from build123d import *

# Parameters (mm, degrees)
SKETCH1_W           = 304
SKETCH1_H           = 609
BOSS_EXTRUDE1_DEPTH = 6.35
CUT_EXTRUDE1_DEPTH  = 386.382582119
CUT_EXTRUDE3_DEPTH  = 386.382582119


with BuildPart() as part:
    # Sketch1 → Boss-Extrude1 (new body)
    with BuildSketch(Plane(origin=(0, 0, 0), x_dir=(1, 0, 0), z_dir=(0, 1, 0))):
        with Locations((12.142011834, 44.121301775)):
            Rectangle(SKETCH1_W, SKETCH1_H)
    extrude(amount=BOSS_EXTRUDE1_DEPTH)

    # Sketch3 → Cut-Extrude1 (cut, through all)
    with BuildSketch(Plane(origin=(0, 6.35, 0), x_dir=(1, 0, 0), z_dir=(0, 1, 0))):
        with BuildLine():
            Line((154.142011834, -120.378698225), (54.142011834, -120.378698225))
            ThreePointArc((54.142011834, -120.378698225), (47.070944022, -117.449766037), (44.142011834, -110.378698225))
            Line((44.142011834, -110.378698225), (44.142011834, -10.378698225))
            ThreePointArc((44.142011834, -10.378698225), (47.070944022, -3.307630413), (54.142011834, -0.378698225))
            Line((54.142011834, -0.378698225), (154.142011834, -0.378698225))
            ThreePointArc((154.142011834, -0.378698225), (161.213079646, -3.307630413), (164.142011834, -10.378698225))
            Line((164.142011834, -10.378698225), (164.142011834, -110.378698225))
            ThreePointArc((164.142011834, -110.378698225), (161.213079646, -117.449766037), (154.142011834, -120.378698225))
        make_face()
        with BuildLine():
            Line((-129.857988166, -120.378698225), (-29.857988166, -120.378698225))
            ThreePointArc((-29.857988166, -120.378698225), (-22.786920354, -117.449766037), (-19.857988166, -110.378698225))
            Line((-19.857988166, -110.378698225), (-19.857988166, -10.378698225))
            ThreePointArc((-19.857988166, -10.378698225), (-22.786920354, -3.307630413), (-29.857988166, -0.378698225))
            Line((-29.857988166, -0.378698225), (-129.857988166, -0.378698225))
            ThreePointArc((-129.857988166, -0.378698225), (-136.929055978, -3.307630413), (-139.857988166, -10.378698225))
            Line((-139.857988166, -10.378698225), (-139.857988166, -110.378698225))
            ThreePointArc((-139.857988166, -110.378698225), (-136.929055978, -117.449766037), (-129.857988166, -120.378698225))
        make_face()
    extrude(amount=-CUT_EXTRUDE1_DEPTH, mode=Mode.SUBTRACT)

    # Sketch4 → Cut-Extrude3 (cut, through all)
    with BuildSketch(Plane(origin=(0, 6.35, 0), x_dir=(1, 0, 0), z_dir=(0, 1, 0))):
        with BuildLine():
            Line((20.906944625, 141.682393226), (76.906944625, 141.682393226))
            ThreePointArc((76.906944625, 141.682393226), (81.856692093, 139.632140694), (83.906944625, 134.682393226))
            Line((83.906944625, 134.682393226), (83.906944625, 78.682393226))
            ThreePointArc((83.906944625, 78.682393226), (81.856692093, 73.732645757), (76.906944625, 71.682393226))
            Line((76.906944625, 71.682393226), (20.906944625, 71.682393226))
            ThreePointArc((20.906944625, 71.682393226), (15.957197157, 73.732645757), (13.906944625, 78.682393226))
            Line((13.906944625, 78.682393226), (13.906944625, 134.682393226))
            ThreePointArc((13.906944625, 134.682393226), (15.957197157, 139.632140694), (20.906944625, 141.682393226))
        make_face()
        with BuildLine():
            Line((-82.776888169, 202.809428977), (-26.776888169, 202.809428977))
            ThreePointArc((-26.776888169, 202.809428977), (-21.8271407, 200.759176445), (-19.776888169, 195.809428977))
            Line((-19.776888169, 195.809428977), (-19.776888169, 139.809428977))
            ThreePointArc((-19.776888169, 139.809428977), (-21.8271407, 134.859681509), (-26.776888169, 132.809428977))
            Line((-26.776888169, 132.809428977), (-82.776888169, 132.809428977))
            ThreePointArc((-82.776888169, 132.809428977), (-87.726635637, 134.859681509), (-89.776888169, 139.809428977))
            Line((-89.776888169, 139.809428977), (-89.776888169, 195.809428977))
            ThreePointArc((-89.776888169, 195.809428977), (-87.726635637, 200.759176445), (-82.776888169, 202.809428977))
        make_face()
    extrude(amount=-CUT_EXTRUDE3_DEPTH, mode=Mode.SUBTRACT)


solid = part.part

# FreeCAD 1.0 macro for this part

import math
import FreeCAD as App
import Part
import Sketcher
Q = App.Units.Quantity

doc = App.newDocument("Part")
body = doc.addObject("PartDesign::Body", "Body")

# Sketch on XZ plane
sketch1 = body.newObject("Sketcher::SketchObject", "Sketch")
sketch1.AttachmentSupport = (doc.getObject("XZ_Plane"), [""])
sketch1.MapMode = "FlatFace"
sketch1.addGeometry(Part.LineSegment(App.Vector(-140, -349, 0), App.Vector(-140, 260, 0)), False)
sketch1.addGeometry(Part.LineSegment(App.Vector(-140, 260, 0), App.Vector(164, 260, 0)), False)
sketch1.addGeometry(Part.LineSegment(App.Vector(164, 260, 0), App.Vector(164, -349, 0)), False)
sketch1.addGeometry(Part.LineSegment(App.Vector(164, -349, 0), App.Vector(-140, -349, 0)), False)
sketch1.addConstraint(Sketcher.Constraint("Coincident", 0, 2, 1, 1))
sketch1.addConstraint(Sketcher.Constraint("Coincident", 1, 2, 2, 1))
sketch1.addConstraint(Sketcher.Constraint("Coincident", 2, 2, 3, 1))
sketch1.addConstraint(Sketcher.Constraint("Coincident", 3, 2, 0, 1))
sketch1.addConstraint(Sketcher.Constraint("Vertical", 0))
sketch1.addConstraint(Sketcher.Constraint("Horizontal", 1))
sketch1.addConstraint(Sketcher.Constraint("Vertical", 2))
sketch1.addConstraint(Sketcher.Constraint("Horizontal", 3))
sketch1.addConstraint(Sketcher.Constraint("DistanceX", 1, 1, 1, 2, Q("304 mm")))
sketch1.addConstraint(Sketcher.Constraint("DistanceY", 0, 1, 0, 2, Q("609 mm")))
sketch1.addConstraint(Sketcher.Constraint("DistanceY", -1, 1, 0, 2, Q("260.378698 mm")))
sketch1.addConstraint(Sketcher.Constraint("DistanceX", 0, 2, -1, 1, Q("139.857988 mm")))
pad1 = body.newObject("PartDesign::Pad", "Pad")
pad1.Profile = sketch1
pad1.Length = 6.35
pad1.Reversed = True

# Sketch on XZ plane
sketch2 = body.newObject("Sketcher::SketchObject", "Sketch001")
sketch2.AttachmentSupport = (doc.getObject("XZ_Plane"), [""])
sketch2.MapMode = "FlatFace"
sketch2.AttachmentOffset = App.Placement(App.Vector(0, 0, -6.35), App.Rotation())
sketch2.addGeometry(Part.LineSegment(App.Vector(54, 120, 0), App.Vector(154, 120, 0)), False)
sketch2.addGeometry(Part.ArcOfCircle(Part.Circle(App.Vector(154, 110, 0), App.Vector(0, 0, 1), 10), math.radians(0), math.radians(90)), False)
sketch2.addGeometry(Part.LineSegment(App.Vector(164, 110, 0), App.Vector(164, 10, 0)), False)
sketch2.addGeometry(Part.ArcOfCircle(Part.Circle(App.Vector(154, 10, 0), App.Vector(0, 0, 1), 10), math.radians(-90), math.radians(0)), False)
sketch2.addGeometry(Part.LineSegment(App.Vector(154, 0, 0), App.Vector(54, 0, 0)), False)
sketch2.addGeometry(Part.ArcOfCircle(Part.Circle(App.Vector(54, 10, 0), App.Vector(0, 0, 1), 10), math.radians(180), math.radians(270)), False)
sketch2.addGeometry(Part.LineSegment(App.Vector(44, 10, 0), App.Vector(44, 110, 0)), False)
sketch2.addGeometry(Part.ArcOfCircle(Part.Circle(App.Vector(54, 110, 0), App.Vector(0, 0, 1), 10), math.radians(90), math.radians(180)), False)
sketch2.addGeometry(Part.LineSegment(App.Vector(-130, 120, 0), App.Vector(-30, 120, 0)), False)
sketch2.addGeometry(Part.ArcOfCircle(Part.Circle(App.Vector(-30, 110, 0), App.Vector(0, 0, 1), 10), math.radians(0), math.radians(90)), False)
sketch2.addGeometry(Part.LineSegment(App.Vector(-20, 110, 0), App.Vector(-20, 10, 0)), False)
sketch2.addGeometry(Part.ArcOfCircle(Part.Circle(App.Vector(-30, 10, 0), App.Vector(0, 0, 1), 10), math.radians(-90), math.radians(0)), False)
sketch2.addGeometry(Part.LineSegment(App.Vector(-30, 0, 0), App.Vector(-130, 0, 0)), False)
sketch2.addGeometry(Part.ArcOfCircle(Part.Circle(App.Vector(-130, 10, 0), App.Vector(0, 0, 1), 10), math.radians(180), math.radians(270)), False)
sketch2.addGeometry(Part.LineSegment(App.Vector(-140, 10, 0), App.Vector(-140, 110, 0)), False)
sketch2.addGeometry(Part.ArcOfCircle(Part.Circle(App.Vector(-130, 110, 0), App.Vector(0, 0, 1), 10), math.radians(90), math.radians(180)), False)
sketch2.addConstraint(Sketcher.Constraint("Tangent", 0, 2, 1, 2))
sketch2.addConstraint(Sketcher.Constraint("Tangent", 1, 1, 2, 1))
sketch2.addConstraint(Sketcher.Constraint("Tangent", 2, 2, 3, 2))
sketch2.addConstraint(Sketcher.Constraint("Tangent", 3, 1, 4, 1))
sketch2.addConstraint(Sketcher.Constraint("Tangent", 4, 2, 5, 2))
sketch2.addConstraint(Sketcher.Constraint("Tangent", 5, 1, 6, 1))
sketch2.addConstraint(Sketcher.Constraint("Tangent", 6, 2, 7, 2))
sketch2.addConstraint(Sketcher.Constraint("Tangent", 7, 1, 0, 1))
sketch2.addConstraint(Sketcher.Constraint("Tangent", 8, 2, 9, 2))
sketch2.addConstraint(Sketcher.Constraint("Tangent", 9, 1, 10, 1))
sketch2.addConstraint(Sketcher.Constraint("Tangent", 10, 2, 11, 2))
sketch2.addConstraint(Sketcher.Constraint("Tangent", 11, 1, 12, 1))
sketch2.addConstraint(Sketcher.Constraint("Tangent", 12, 2, 13, 2))
sketch2.addConstraint(Sketcher.Constraint("Tangent", 13, 1, 14, 1))
sketch2.addConstraint(Sketcher.Constraint("Tangent", 14, 2, 15, 2))
sketch2.addConstraint(Sketcher.Constraint("Tangent", 15, 1, 8, 1))
sketch2.addConstraint(Sketcher.Constraint("Horizontal", 0))
sketch2.addConstraint(Sketcher.Constraint("Vertical", 2))
sketch2.addConstraint(Sketcher.Constraint("Horizontal", 4))
sketch2.addConstraint(Sketcher.Constraint("Vertical", 6))
sketch2.addConstraint(Sketcher.Constraint("Horizontal", 8))
sketch2.addConstraint(Sketcher.Constraint("Vertical", 10))
sketch2.addConstraint(Sketcher.Constraint("Horizontal", 12))
sketch2.addConstraint(Sketcher.Constraint("Vertical", 14))
sketch2.addConstraint(Sketcher.Constraint("Equal", 1, 3))
sketch2.addConstraint(Sketcher.Constraint("Equal", 3, 5))
sketch2.addConstraint(Sketcher.Constraint("Equal", 5, 7))
sketch2.addConstraint(Sketcher.Constraint("Equal", 7, 9))
sketch2.addConstraint(Sketcher.Constraint("Equal", 9, 11))
sketch2.addConstraint(Sketcher.Constraint("Equal", 11, 13))
sketch2.addConstraint(Sketcher.Constraint("Equal", 13, 15))
sketch2.addConstraint(Sketcher.Constraint("Horizontal", 7, 3, 9, 3))
sketch2.addConstraint(Sketcher.Constraint("Horizontal", 5, 3, 11, 3))
sketch2.addConstraint(Sketcher.Constraint("Equal", 4, 8))
sketch2.addConstraint(Sketcher.Constraint("Equal", 12, 2))
sketch2.addConstraint(Sketcher.Constraint("Radius", 1, Q("10 mm")))
sketch2.addConstraint(Sketcher.Constraint("DistanceX", 0, 1, 0, 2, Q("100 mm")))
sketch2.addConstraint(Sketcher.Constraint("DistanceX", 9, 3, 7, 3, Q("84 mm")))
sketch2.addConstraint(Sketcher.Constraint("DistanceY", -1, 1, 1, 3, Q("110.378698 mm")))
sketch2.addConstraint(Sketcher.Constraint("DistanceX", -1, 1, 1, 3, Q("154.142012 mm")))
pocket1 = body.newObject("PartDesign::Pocket", "Pocket")
pocket1.Profile = sketch2
pocket1.Type = "ThroughAll"
pocket1.Reversed = True

# Sketch on XZ plane
sketch3 = body.newObject("Sketcher::SketchObject", "Sketch002")
sketch3.AttachmentSupport = (doc.getObject("XZ_Plane"), [""])
sketch3.MapMode = "FlatFace"
sketch3.AttachmentOffset = App.Placement(App.Vector(0, 0, -6.35), App.Rotation())
sketch3.addGeometry(Part.LineSegment(App.Vector(77, -142, 0), App.Vector(21, -142, 0)), False)
sketch3.addGeometry(Part.ArcOfCircle(Part.Circle(App.Vector(21, -135, 0), App.Vector(0, 0, 1), 7), math.radians(-180), math.radians(-90)), False)
sketch3.addGeometry(Part.LineSegment(App.Vector(14, -135, 0), App.Vector(14, -79, 0)), False)
sketch3.addGeometry(Part.ArcOfCircle(Part.Circle(App.Vector(21, -79, 0), App.Vector(0, 0, 1), 7), math.radians(90), math.radians(180)), False)
sketch3.addGeometry(Part.LineSegment(App.Vector(21, -72, 0), App.Vector(77, -72, 0)), False)
sketch3.addGeometry(Part.ArcOfCircle(Part.Circle(App.Vector(77, -79, 0), App.Vector(0, 0, 1), 7), math.radians(0), math.radians(90)), False)
sketch3.addGeometry(Part.LineSegment(App.Vector(84, -79, 0), App.Vector(84, -135, 0)), False)
sketch3.addGeometry(Part.ArcOfCircle(Part.Circle(App.Vector(77, -135, 0), App.Vector(0, 0, 1), 7), math.radians(-90), math.radians(0)), False)
sketch3.addGeometry(Part.LineSegment(App.Vector(-27, -203, 0), App.Vector(-83, -203, 0)), False)
sketch3.addGeometry(Part.ArcOfCircle(Part.Circle(App.Vector(-83, -196, 0), App.Vector(0, 0, 1), 7), math.radians(-180), math.radians(-90)), False)
sketch3.addGeometry(Part.LineSegment(App.Vector(-90, -196, 0), App.Vector(-90, -140, 0)), False)
sketch3.addGeometry(Part.ArcOfCircle(Part.Circle(App.Vector(-83, -140, 0), App.Vector(0, 0, 1), 7), math.radians(90), math.radians(180)), False)
sketch3.addGeometry(Part.LineSegment(App.Vector(-83, -133, 0), App.Vector(-27, -133, 0)), False)
sketch3.addGeometry(Part.ArcOfCircle(Part.Circle(App.Vector(-27, -140, 0), App.Vector(0, 0, 1), 7), math.radians(0), math.radians(90)), False)
sketch3.addGeometry(Part.LineSegment(App.Vector(-20, -140, 0), App.Vector(-20, -196, 0)), False)
sketch3.addGeometry(Part.ArcOfCircle(Part.Circle(App.Vector(-27, -196, 0), App.Vector(0, 0, 1), 7), math.radians(-90), math.radians(0)), False)
sketch3.addConstraint(Sketcher.Constraint("Tangent", 0, 2, 1, 2))
sketch3.addConstraint(Sketcher.Constraint("Tangent", 1, 1, 2, 1))
sketch3.addConstraint(Sketcher.Constraint("Tangent", 2, 2, 3, 2))
sketch3.addConstraint(Sketcher.Constraint("Tangent", 3, 1, 4, 1))
sketch3.addConstraint(Sketcher.Constraint("Tangent", 4, 2, 5, 2))
sketch3.addConstraint(Sketcher.Constraint("Tangent", 5, 1, 6, 1))
sketch3.addConstraint(Sketcher.Constraint("Tangent", 6, 2, 7, 2))
sketch3.addConstraint(Sketcher.Constraint("Tangent", 7, 1, 0, 1))
sketch3.addConstraint(Sketcher.Constraint("Tangent", 8, 2, 9, 2))
sketch3.addConstraint(Sketcher.Constraint("Tangent", 9, 1, 10, 1))
sketch3.addConstraint(Sketcher.Constraint("Tangent", 10, 2, 11, 2))
sketch3.addConstraint(Sketcher.Constraint("Tangent", 11, 1, 12, 1))
sketch3.addConstraint(Sketcher.Constraint("Tangent", 12, 2, 13, 2))
sketch3.addConstraint(Sketcher.Constraint("Tangent", 13, 1, 14, 1))
sketch3.addConstraint(Sketcher.Constraint("Tangent", 14, 2, 15, 2))
sketch3.addConstraint(Sketcher.Constraint("Tangent", 15, 1, 8, 1))
sketch3.addConstraint(Sketcher.Constraint("Horizontal", 0))
sketch3.addConstraint(Sketcher.Constraint("Vertical", 2))
sketch3.addConstraint(Sketcher.Constraint("Horizontal", 4))
sketch3.addConstraint(Sketcher.Constraint("Vertical", 6))
sketch3.addConstraint(Sketcher.Constraint("Horizontal", 8))
sketch3.addConstraint(Sketcher.Constraint("Vertical", 10))
sketch3.addConstraint(Sketcher.Constraint("Horizontal", 12))
sketch3.addConstraint(Sketcher.Constraint("Vertical", 14))
sketch3.addConstraint(Sketcher.Constraint("Equal", 1, 3))
sketch3.addConstraint(Sketcher.Constraint("Equal", 3, 5))
sketch3.addConstraint(Sketcher.Constraint("Equal", 5, 7))
sketch3.addConstraint(Sketcher.Constraint("Equal", 7, 9))
sketch3.addConstraint(Sketcher.Constraint("Equal", 9, 11))
sketch3.addConstraint(Sketcher.Constraint("Equal", 11, 13))
sketch3.addConstraint(Sketcher.Constraint("Equal", 13, 15))
sketch3.addConstraint(Sketcher.Constraint("Equal", 4, 8))
sketch3.addConstraint(Sketcher.Constraint("Equal", 12, 2))
sketch3.addConstraint(Sketcher.Constraint("Equal", 6, 10))
sketch3.addConstraint(Sketcher.Constraint("Radius", 1, Q("7 mm")))
sketch3.addConstraint(Sketcher.Constraint("DistanceX", 0, 2, 0, 1, Q("56 mm")))
sketch3.addConstraint(Sketcher.Constraint("DistanceX", 9, 3, -1, 1, Q("82.776888 mm")))
sketch3.addConstraint(Sketcher.Constraint("DistanceY", 9, 3, -1, 1, Q("195.809429 mm")))
sketch3.addConstraint(Sketcher.Constraint("DistanceX", -1, 1, 1, 3, Q("20.906945 mm")))
sketch3.addConstraint(Sketcher.Constraint("DistanceY", 1, 3, -1, 1, Q("134.682393 mm")))
pocket2 = body.newObject("PartDesign::Pocket", "Pocket001")
pocket2.Profile = sketch3
pocket2.Type = "ThroughAll"
pocket2.Reversed = True

doc.recompute()
